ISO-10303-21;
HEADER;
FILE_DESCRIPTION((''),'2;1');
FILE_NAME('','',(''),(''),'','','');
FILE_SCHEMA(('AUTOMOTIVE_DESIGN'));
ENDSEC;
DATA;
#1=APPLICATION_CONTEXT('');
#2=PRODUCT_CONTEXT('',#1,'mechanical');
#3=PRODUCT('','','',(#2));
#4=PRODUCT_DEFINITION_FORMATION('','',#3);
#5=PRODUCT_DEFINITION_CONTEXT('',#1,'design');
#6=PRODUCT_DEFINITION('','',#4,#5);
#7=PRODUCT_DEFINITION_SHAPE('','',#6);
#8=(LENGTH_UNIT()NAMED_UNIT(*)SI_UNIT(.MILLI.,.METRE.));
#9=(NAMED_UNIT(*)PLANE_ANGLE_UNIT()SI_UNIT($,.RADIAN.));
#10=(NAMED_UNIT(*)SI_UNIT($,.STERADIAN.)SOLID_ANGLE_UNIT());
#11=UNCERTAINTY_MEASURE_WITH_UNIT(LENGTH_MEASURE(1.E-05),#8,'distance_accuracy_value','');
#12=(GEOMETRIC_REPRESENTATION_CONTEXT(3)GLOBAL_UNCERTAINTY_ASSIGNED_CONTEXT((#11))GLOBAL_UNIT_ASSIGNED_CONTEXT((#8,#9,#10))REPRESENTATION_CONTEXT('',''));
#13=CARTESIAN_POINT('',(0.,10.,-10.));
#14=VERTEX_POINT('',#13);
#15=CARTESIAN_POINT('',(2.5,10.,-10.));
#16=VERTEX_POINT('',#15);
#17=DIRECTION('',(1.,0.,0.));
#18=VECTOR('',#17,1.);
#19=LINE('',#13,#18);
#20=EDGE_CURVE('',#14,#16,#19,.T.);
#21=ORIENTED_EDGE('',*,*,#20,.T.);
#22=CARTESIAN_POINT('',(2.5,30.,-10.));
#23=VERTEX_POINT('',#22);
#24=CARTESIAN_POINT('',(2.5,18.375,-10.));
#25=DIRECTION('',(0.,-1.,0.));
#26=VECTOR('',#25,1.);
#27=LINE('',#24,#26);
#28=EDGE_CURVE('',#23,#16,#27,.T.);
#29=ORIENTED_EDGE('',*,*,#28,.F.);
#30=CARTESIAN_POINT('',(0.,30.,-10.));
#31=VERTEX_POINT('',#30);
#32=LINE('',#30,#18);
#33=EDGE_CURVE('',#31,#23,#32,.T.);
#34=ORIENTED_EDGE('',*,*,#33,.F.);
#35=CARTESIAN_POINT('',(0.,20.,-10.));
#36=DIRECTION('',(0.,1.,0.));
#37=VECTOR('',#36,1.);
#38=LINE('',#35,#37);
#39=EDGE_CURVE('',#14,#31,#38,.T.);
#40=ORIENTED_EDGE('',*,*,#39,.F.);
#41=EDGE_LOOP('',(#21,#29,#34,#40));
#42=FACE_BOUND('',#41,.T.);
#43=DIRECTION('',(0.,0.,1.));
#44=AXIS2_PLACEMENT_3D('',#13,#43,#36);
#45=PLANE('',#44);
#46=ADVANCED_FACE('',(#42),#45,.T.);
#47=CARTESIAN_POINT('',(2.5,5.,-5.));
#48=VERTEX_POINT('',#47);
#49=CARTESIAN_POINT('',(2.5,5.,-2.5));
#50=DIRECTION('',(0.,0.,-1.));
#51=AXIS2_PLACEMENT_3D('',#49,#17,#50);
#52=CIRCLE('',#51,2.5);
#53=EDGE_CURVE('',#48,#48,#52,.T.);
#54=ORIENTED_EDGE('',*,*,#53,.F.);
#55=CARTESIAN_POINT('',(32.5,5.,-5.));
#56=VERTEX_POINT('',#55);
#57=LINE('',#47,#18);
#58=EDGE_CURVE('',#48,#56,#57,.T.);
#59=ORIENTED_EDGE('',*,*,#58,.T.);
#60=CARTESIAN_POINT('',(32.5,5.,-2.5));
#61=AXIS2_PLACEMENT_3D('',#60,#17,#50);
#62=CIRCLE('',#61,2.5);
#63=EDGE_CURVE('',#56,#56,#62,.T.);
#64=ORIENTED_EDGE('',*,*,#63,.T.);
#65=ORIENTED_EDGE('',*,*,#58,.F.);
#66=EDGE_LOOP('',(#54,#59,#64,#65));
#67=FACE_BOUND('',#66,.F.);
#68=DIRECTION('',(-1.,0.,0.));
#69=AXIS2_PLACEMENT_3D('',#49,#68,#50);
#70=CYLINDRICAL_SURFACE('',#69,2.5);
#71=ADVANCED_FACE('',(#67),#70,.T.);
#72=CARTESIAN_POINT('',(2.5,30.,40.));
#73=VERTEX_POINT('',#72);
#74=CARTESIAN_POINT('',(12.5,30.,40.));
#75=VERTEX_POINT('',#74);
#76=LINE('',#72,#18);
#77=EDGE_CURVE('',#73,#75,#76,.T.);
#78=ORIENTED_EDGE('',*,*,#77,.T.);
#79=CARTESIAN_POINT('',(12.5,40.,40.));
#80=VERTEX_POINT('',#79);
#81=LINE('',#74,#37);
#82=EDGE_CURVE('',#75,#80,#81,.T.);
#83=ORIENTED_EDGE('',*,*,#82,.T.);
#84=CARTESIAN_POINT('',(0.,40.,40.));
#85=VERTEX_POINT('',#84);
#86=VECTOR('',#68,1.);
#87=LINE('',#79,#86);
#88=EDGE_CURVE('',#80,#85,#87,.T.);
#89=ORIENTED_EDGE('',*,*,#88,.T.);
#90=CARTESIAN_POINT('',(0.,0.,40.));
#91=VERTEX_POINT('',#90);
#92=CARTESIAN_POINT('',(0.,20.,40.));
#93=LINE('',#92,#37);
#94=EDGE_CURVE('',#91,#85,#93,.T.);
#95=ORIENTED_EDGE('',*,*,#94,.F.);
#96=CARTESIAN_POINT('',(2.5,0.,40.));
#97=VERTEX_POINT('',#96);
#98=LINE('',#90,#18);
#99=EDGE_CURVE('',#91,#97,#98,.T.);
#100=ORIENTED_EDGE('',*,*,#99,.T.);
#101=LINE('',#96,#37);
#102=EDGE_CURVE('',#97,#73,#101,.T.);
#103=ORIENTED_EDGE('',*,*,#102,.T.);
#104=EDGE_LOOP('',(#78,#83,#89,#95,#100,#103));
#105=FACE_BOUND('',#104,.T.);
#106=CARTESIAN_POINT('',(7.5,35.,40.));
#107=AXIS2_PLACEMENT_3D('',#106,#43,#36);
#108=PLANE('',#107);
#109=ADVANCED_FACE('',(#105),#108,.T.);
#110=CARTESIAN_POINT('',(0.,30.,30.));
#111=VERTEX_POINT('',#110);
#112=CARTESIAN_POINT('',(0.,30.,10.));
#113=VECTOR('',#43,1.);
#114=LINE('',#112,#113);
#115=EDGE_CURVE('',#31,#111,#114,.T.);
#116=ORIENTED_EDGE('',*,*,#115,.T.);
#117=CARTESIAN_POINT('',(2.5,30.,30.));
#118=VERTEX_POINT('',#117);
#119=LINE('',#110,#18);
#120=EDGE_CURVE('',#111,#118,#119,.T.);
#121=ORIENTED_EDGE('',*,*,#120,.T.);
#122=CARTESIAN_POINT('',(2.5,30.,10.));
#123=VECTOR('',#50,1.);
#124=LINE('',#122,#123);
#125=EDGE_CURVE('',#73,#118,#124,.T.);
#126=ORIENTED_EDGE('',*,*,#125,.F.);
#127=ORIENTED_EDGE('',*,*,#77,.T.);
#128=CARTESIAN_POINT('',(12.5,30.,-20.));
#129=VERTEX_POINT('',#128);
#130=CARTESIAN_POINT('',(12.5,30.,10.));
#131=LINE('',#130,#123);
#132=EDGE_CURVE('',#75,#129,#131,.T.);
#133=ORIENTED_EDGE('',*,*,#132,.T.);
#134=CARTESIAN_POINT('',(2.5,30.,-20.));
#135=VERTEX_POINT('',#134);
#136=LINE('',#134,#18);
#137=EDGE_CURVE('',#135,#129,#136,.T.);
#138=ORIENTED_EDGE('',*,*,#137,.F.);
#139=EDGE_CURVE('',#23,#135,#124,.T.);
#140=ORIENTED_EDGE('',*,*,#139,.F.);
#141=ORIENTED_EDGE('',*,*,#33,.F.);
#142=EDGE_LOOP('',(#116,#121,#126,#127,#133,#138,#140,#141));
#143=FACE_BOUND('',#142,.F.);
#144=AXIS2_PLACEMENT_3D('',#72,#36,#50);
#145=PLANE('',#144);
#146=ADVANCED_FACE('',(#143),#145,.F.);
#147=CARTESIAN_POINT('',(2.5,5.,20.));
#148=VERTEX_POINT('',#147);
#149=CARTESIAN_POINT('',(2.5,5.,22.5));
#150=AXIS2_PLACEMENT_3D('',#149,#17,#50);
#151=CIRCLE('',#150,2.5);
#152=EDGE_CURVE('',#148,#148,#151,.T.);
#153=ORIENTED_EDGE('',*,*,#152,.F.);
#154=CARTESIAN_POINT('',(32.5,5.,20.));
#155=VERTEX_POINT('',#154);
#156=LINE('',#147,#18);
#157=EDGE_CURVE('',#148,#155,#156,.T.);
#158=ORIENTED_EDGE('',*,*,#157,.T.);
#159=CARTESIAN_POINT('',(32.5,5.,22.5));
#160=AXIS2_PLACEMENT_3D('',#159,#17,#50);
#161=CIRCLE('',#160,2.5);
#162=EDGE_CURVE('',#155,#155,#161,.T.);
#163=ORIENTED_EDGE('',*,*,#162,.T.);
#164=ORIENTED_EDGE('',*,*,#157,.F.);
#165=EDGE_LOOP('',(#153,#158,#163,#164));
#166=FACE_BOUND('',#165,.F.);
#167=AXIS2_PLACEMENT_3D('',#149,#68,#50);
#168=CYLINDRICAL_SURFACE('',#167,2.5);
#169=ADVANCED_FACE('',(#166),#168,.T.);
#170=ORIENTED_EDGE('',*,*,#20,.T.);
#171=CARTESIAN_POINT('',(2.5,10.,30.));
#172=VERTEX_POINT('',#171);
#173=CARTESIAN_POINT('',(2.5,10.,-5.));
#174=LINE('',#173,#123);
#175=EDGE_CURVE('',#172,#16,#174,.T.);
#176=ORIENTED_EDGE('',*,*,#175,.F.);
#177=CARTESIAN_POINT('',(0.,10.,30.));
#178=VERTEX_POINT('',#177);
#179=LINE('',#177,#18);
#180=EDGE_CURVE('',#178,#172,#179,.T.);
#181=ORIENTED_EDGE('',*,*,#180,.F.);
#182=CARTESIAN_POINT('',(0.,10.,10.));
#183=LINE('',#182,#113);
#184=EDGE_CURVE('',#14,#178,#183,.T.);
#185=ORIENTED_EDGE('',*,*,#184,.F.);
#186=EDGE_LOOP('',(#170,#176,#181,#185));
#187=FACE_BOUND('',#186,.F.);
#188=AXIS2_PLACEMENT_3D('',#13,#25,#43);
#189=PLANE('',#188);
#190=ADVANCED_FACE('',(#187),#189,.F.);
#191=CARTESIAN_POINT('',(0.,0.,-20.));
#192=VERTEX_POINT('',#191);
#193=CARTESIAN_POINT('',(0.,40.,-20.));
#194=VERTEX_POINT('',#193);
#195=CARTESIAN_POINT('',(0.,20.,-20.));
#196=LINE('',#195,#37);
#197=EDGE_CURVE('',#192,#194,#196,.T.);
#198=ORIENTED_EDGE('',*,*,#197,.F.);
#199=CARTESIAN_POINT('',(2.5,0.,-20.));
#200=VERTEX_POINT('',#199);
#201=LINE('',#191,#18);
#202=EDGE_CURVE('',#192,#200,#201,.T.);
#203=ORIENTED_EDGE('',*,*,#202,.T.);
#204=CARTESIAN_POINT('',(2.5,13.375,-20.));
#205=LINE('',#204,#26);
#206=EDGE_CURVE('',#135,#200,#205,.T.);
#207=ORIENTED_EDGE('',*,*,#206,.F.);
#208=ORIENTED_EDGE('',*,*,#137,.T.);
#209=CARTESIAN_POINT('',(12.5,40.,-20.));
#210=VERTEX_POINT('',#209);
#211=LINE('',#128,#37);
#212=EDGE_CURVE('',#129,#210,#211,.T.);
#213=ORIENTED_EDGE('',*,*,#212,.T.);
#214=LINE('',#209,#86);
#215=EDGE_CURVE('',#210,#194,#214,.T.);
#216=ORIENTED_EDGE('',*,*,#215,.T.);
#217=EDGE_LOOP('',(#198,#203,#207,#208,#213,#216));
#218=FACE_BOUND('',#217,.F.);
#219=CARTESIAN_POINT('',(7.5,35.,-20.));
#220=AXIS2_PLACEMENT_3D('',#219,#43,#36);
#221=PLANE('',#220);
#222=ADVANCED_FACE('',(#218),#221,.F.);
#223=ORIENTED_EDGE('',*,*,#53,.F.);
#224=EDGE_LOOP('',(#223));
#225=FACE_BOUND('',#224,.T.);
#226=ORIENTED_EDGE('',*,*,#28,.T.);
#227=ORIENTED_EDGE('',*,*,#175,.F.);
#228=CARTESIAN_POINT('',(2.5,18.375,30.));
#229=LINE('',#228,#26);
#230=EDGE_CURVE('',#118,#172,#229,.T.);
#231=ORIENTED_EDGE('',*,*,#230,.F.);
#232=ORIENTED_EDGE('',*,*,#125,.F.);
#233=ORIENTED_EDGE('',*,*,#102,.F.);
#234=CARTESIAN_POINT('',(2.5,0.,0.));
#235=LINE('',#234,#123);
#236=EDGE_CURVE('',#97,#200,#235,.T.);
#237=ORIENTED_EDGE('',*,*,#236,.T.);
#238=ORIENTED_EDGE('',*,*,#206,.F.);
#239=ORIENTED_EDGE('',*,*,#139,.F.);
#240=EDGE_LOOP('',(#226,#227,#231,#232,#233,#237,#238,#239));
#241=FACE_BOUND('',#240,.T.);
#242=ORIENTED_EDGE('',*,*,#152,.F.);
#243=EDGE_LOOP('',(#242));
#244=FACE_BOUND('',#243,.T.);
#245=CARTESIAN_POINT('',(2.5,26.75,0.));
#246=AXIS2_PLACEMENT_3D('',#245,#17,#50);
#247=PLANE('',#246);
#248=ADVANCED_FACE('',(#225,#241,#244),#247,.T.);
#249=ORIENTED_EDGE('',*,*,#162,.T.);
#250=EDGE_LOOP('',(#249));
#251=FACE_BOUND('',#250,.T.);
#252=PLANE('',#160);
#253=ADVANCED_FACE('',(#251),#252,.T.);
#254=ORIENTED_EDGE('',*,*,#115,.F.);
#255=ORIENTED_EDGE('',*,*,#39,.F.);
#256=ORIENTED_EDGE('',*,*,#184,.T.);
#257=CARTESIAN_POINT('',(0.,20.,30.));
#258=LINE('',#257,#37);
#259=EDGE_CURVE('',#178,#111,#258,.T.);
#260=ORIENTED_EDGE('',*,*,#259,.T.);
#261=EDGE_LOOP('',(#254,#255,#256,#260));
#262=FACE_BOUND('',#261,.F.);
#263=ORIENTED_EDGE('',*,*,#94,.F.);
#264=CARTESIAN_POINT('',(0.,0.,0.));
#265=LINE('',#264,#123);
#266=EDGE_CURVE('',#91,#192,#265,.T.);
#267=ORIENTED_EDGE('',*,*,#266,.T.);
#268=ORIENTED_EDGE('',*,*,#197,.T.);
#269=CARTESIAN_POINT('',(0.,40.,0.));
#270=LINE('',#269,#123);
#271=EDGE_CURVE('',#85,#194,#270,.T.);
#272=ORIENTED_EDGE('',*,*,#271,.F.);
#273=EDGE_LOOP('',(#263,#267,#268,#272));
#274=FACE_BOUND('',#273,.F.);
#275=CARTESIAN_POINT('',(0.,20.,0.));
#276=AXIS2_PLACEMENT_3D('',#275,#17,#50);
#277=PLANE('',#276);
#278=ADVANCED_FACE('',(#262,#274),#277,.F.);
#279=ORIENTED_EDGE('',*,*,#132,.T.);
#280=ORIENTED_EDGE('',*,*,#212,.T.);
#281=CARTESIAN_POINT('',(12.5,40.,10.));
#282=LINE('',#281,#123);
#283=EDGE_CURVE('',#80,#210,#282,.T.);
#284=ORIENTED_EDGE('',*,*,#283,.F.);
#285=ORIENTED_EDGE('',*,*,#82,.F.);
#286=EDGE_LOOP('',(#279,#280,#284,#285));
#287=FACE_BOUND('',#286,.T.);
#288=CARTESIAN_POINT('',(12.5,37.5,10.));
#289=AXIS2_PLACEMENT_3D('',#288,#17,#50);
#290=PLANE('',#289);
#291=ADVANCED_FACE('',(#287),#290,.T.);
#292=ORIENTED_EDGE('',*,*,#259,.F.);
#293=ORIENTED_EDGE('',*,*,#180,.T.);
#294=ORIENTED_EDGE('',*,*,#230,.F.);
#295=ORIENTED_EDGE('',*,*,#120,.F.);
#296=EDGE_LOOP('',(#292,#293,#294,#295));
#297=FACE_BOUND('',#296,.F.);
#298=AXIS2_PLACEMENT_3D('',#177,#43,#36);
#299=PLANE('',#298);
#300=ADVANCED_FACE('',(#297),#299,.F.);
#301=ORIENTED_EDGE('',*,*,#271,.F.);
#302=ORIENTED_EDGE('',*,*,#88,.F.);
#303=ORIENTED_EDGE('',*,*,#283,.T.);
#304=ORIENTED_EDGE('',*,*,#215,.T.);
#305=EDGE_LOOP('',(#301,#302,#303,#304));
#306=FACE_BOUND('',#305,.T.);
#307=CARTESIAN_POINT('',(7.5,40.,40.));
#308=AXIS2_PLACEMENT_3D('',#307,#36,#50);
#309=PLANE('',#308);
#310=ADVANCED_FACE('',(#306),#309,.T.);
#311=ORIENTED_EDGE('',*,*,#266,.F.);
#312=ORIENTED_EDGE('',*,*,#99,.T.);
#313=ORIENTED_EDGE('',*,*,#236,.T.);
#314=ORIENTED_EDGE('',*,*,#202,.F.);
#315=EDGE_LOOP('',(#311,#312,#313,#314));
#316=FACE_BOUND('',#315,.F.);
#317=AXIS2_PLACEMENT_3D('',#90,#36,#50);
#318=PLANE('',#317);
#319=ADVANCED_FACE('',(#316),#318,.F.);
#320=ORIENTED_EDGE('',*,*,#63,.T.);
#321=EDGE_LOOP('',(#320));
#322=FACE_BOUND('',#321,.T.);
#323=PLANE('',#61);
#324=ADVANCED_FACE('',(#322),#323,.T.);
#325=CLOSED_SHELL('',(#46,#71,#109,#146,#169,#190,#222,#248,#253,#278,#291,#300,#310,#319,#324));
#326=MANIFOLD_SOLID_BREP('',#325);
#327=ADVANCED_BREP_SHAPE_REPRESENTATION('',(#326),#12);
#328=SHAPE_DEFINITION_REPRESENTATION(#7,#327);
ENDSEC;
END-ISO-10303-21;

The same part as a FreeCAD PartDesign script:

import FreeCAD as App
import Part
import Sketcher

V = App.Vector
Q = App.Units.Quantity

doc = App.newDocument("Part")
body = doc.addObject("PartDesign::Body", "Body")

sketch1 = doc.addObject("Sketcher::SketchObject", "Sketch")
body.addObject(sketch1)
sketch1.AttachmentSupport = (doc.YZ_Plane, [""])
sketch1.MapMode = "FlatFace"
sketch1.addGeometry(Part.LineSegment(V(40, 40, 0), V(0, 40, 0)), False)
sketch1.addGeometry(Part.LineSegment(V(0, 40, 0), V(0, -40, 0)), False)
sketch1.addGeometry(Part.LineSegment(V(0, -40, 0), V(40, -40, 0)), False)
sketch1.addGeometry(Part.LineSegment(V(40, -40, 0), V(40, 40, 0)), False)
sketch1.addConstraint(Sketcher.Constraint("Coincident", 0, 2, 1, 1))
sketch1.addConstraint(Sketcher.Constraint("Coincident", 1, 2, 2, 1))
sketch1.addConstraint(Sketcher.Constraint("Coincident", 2, 2, 3, 1))
sketch1.addConstraint(Sketcher.Constraint("Coincident", 3, 2, 0, 1))
sketch1.addConstraint(Sketcher.Constraint("Horizontal", 0))
sketch1.addConstraint(Sketcher.Constraint("Vertical", 1))
sketch1.addConstraint(Sketcher.Constraint("Horizontal", 2))
sketch1.addConstraint(Sketcher.Constraint("Vertical", 3))
sketch1.addConstraint(Sketcher.Constraint("Symmetric", 0, 2, 1, 2, -1, 1))
sketch1.addConstraint(Sketcher.Constraint("DistanceX", 0, 2, 0, 1, Q("40 mm")))
sketch1.addConstraint(Sketcher.Constraint("DistanceY", 1, 2, 1, 1, Q("80 mm")))
pad1 = doc.addObject("PartDesign::Pad", "Pad")
body.addObject(pad1)
pad1.Profile = sketch1
pad1.Length = 7.5

sketch2 = doc.addObject("Sketcher::SketchObject", "Sketch001")
body.addObject(sketch2)
sketch2.AttachmentSupport = (doc.YZ_Plane, [""])
sketch2.MapMode = "FlatFace"
sketch2.AttachmentOffset = App.Placement(V(0, 0, 7.5), App.Rotation())
sketch2.addGeometry(Part.LineSegment(V(18.5, 40, 0), V(0, 40, 0)), False)
sketch2.addGeometry(Part.LineSegment(V(0, 40, 0), V(0, -40, 0)), False)
sketch2.addGeometry(Part.LineSegment(V(0, -40, 0), V(18.5, -40, 0)), False)
sketch2.addGeometry(Part.LineSegment(V(18.5, -40, 0), V(18.5, 40, 0)), False)
sketch2.addConstraint(Sketcher.Constraint("Coincident", 0, 2, 1, 1))
sketch2.addConstraint(Sketcher.Constraint("Coincident", 1, 2, 2, 1))
sketch2.addConstraint(Sketcher.Constraint("Coincident", 2, 2, 3, 1))
sketch2.addConstraint(Sketcher.Constraint("Coincident", 3, 2, 0, 1))
sketch2.addConstraint(Sketcher.Constraint("Horizontal", 0))
sketch2.addConstraint(Sketcher.Constraint("Vertical", 1))
sketch2.addConstraint(Sketcher.Constraint("Horizontal", 2))
sketch2.addConstraint(Sketcher.Constraint("Vertical", 3))
sketch2.addConstraint(Sketcher.Constraint("Symmetric", 0, 2, 1, 2, -1, 1))
sketch2.addConstraint(Sketcher.Constraint("DistanceY", 1, 2, 1, 1, Q("80 mm")))
sketch2.addConstraint(Sketcher.Constraint("DistanceX", 0, 2, 0, 1, Q("18.5 mm")))
pocket1 = doc.addObject("PartDesign::Pocket", "Pocket")
body.addObject(pocket1)
pocket1.Profile = sketch2
pocket1.Length = 5

sketch3 = doc.addObject("Sketcher::SketchObject", "Sketch002")
body.addObject(sketch3)
sketch3.AttachmentSupport = (doc.YZ_Plane, [""])
sketch3.MapMode = "FlatFace"
sketch3.AttachmentOffset = App.Placement(V(0, 0, 7.5), App.Rotation())
sketch3.addGeometry(Part.LineSegment(V(35, 40, 0), V(18.5, 40, 0)), False)
sketch3.addGeometry(Part.LineSegment(V(18.5, 40, 0), V(18.5, -40, 0)), False)
sketch3.addGeometry(Part.LineSegment(V(18.5, -40, 0), V(35, -40, 0)), False)
sketch3.addGeometry(Part.LineSegment(V(35, -40, 0), V(35, 40, 0)), False)
sketch3.addConstraint(Sketcher.Constraint("Coincident", 0, 2, 1, 1))
sketch3.addConstraint(Sketcher.Constraint("Coincident", 1, 2, 2, 1))
sketch3.addConstraint(Sketcher.Constraint("Coincident", 2, 2, 3, 1))
sketch3.addConstraint(Sketcher.Constraint("Coincident", 3, 2, 0, 1))
sketch3.addConstraint(Sketcher.Constraint("Horizontal", 0))
sketch3.addConstraint(Sketcher.Constraint("Vertical", 1))
sketch3.addConstraint(Sketcher.Constraint("Horizontal", 2))
sketch3.addConstraint(Sketcher.Constraint("Vertical", 3))
sketch3.addConstraint(Sketcher.Constraint("DistanceY", 1, 2, 1, 1, Q("80 mm")))
sketch3.addConstraint(Sketcher.Constraint("DistanceX", 0, 2, 0, 1, Q("16.5 mm")))
sketch3.addConstraint(Sketcher.Constraint("DistanceY", -1, 1, 0, 2, Q("40 mm")))
sketch3.addConstraint(Sketcher.Constraint("DistanceX", -1, 1, 2, 2, Q("35 mm")))
pocket2 = doc.addObject("PartDesign::Pocket", "Pocket001")
body.addObject(pocket2)
pocket2.Profile = sketch3
pocket2.Length = 5

sketch4 = doc.addObject("Sketcher::SketchObject", "Sketch003")
body.addObject(sketch4)
sketch4.AttachmentSupport = (doc.YZ_Plane, [""])
sketch4.MapMode = "FlatFace"
sketch4.addGeometry(Part.LineSegment(V(40, -40, 0), V(0, -40, 0)), False)
sketch4.addGeometry(Part.LineSegment(V(0, -40, 0), V(0, -20, 0)), False)
sketch4.addGeometry(Part.LineSegment(V(0, -20, 0), V(40, -20, 0)), False)
sketch4.addGeometry(Part.LineSegment(V(40, -20, 0), V(40, -40, 0)), False)
sketch4.addConstraint(Sketcher.Constraint("Coincident", 0, 2, 1, 1))
sketch4.addConstraint(Sketcher.Constraint("Coincident", 1, 2, 2, 1))
sketch4.addConstraint(Sketcher.Constraint("Coincident", 2, 2, 3, 1))
sketch4.addConstraint(Sketcher.Constraint("Coincident", 3, 2, 0, 1))
sketch4.addConstraint(Sketcher.Constraint("Horizontal", 0))
sketch4.addConstraint(Sketcher.Constraint("Vertical", 1))
sketch4.addConstraint(Sketcher.Constraint("Horizontal", 2))
sketch4.addConstraint(Sketcher.Constraint("Vertical", 3))
sketch4.addConstraint(Sketcher.Constraint("PointOnObject", 0, 2, -2))
sketch4.addConstraint(Sketcher.Constraint("DistanceX", 0, 2, 0, 1, Q("40 mm")))
sketch4.addConstraint(Sketcher.Constraint("DistanceY", 1, 1, 1, 2, Q("20 mm")))
sketch4.addConstraint(Sketcher.Constraint("DistanceY", 0, 2, -1, 1, Q("40 mm")))
pocket3 = doc.addObject("PartDesign::Pocket", "Pocket002")
body.addObject(pocket3)
pocket3.Profile = sketch4
pocket3.Length = 10
pocket3.Reversed = True

sketch5 = doc.addObject("Sketcher::SketchObject", "Sketch004")
body.addObject(sketch5)
sketch5.AttachmentSupport = (doc.YZ_Plane, [""])
sketch5.MapMode = "FlatFace"
sketch5.addGeometry(Part.LineSegment(V(30, -10, 0), V(10, -10, 0)), False)
sketch5.addGeometry(Part.LineSegment(V(10, -10, 0), V(10, 30, 0)), False)
sketch5.addGeometry(Part.LineSegment(V(10, 30, 0), V(30, 30, 0)), False)
sketch5.addGeometry(Part.LineSegment(V(30, 30, 0), V(30, -10, 0)), False)
sketch5.addConstraint(Sketcher.Constraint("Coincident", 0, 2, 1, 1))
sketch5.addConstraint(Sketcher.Constraint("Coincident", 1, 2, 2, 1))
sketch5.addConstraint(Sketcher.Constraint("Coincident", 2, 2, 3, 1))
sketch5.addConstraint(Sketcher.Constraint("Coincident", 3, 2, 0, 1))
sketch5.addConstraint(Sketcher.Constraint("Horizontal", 0))
sketch5.addConstraint(Sketcher.Constraint("Vertical", 1))
sketch5.addConstraint(Sketcher.Constraint("Horizontal", 2))
sketch5.addConstraint(Sketcher.Constraint("Vertical", 3))
sketch5.addConstraint(Sketcher.Constraint("DistanceX", 0, 2, 0, 1, Q("20 mm")))
sketch5.addConstraint(Sketcher.Constraint("DistanceY", 1, 1, 1, 2, Q("40 mm")))
sketch5.addConstraint(Sketcher.Constraint("DistanceX", -1, 1, 0, 2, Q("10 mm")))
sketch5.addConstraint(Sketcher.Constraint("DistanceY", 0, 2, -1, 1, Q("10 mm")))
pocket4 = doc.addObject("PartDesign::Pocket", "Pocket003")
body.addObject(pocket4)
pocket4.Profile = sketch5
pocket4.Length = 10
pocket4.Reversed = True

sketch6 = doc.addObject("Sketcher::SketchObject", "Sketch005")
body.addObject(sketch6)
sketch6.AttachmentSupport = (doc.YZ_Plane, [""])
sketch6.MapMode = "FlatFace"
sketch6.AttachmentOffset = App.Placement(V(0, 0, 2.5), App.Rotation())
sketch6.addGeometry(Part.LineSegment(V(35, 40, 0), V(30, 40, 0)), False)
sketch6.addGeometry(Part.LineSegment(V(30, 40, 0), V(30, -20, 0)), False)
sketch6.addGeometry(Part.LineSegment(V(30, -20, 0), V(35, -20, 0)), False)
sketch6.addGeometry(Part.LineSegment(V(35, -20, 0), V(35, 40, 0)), False)
sketch6.addConstraint(Sketcher.Constraint("Coincident", 0, 2, 1, 1))
sketch6.addConstraint(Sketcher.Constraint("Coincident", 1, 2, 2, 1))
sketch6.addConstraint(Sketcher.Constraint("Coincident", 2, 2, 3, 1))
sketch6.addConstraint(Sketcher.Constraint("Coincident", 3, 2, 0, 1))
sketch6.addConstraint(Sketcher.Constraint("Horizontal", 0))
sketch6.addConstraint(Sketcher.Constraint("Vertical", 1))
sketch6.addConstraint(Sketcher.Constraint("Horizontal", 2))
sketch6.addConstraint(Sketcher.Constraint("Vertical", 3))
sketch6.addConstraint(Sketcher.Constraint("DistanceX", 0, 2, 0, 1, Q("5 mm")))
sketch6.addConstraint(Sketcher.Constraint("DistanceY", 1, 2, 1, 1, Q("60 mm")))
sketch6.addConstraint(Sketcher.Constraint("DistanceX", -1, 1, 0, 2, Q("30 mm")))
sketch6.addConstraint(Sketcher.Constraint("DistanceY", -1, 1, 0, 2, Q("40 mm")))
pad2 = doc.addObject("PartDesign::Pad", "Pad001")
body.addObject(pad2)
pad2.Profile = sketch6
pad2.Length = 10

sketch7 = doc.addObject("Sketcher::SketchObject", "Sketch006")
body.addObject(sketch7)
sketch7.AttachmentSupport = (doc.YZ_Plane, [""])
sketch7.MapMode = "FlatFace"
sketch7.AttachmentOffset = App.Placement(V(0, 0, 7.5), App.Rotation())
sketch7.addGeometry(Part.LineSegment(V(40, 40, 0), V(35, 40, 0)), False)
sketch7.addGeometry(Part.LineSegment(V(35, 40, 0), V(35, -20, 0)), False)
sketch7.addGeometry(Part.LineSegment(V(35, -20, 0), V(40, -20, 0)), False)
sketch7.addGeometry(Part.LineSegment(V(40, -20, 0), V(40, 40, 0)), False)
sketch7.addConstraint(Sketcher.Constraint("Coincident", 0, 2, 1, 1))
sketch7.addConstraint(Sketcher.Constraint("Coincident", 1, 2, 2, 1))
sketch7.addConstraint(Sketcher.Constraint("Coincident", 2, 2, 3, 1))
sketch7.addConstraint(Sketcher.Constraint("Coincident", 3, 2, 0, 1))
sketch7.addConstraint(Sketcher.Constraint("Horizontal", 0))
sketch7.addConstraint(Sketcher.Constraint("Vertical", 1))
sketch7.addConstraint(Sketcher.Constraint("Horizontal", 2))
sketch7.addConstraint(Sketcher.Constraint("Vertical", 3))
sketch7.addConstraint(Sketcher.Constraint("DistanceX", 0, 2, 0, 1, Q("5 mm")))
sketch7.addConstraint(Sketcher.Constraint("DistanceY", 1, 2, 1, 1, Q("60 mm")))
sketch7.addConstraint(Sketcher.Constraint("DistanceX", -1, 1, 0, 2, Q("35 mm")))
sketch7.addConstraint(Sketcher.Constraint("DistanceY", -1, 1, 0, 2, Q("40 mm")))
pad3 = doc.addObject("PartDesign::Pad", "Pad002")
body.addObject(pad3)
pad3.Profile = sketch7
pad3.Length = 5

sketch8 = doc.addObject("Sketcher::SketchObject", "Sketch007")
body.addObject(sketch8)
sketch8.AttachmentSupport = (doc.YZ_Plane, [""])
sketch8.MapMode = "FlatFace"
sketch8.AttachmentOffset = App.Placement(V(0, 0, 2.5), App.Rotation())
sketch8.addGeometry(Part.Circle(V(5, 22.5, 0), V(0, 0, 1), 2.5), False)
sketch8.addGeometry(Part.Circle(V(5, -2.5, 0), V(0, 0, 1), 2.5), False)
sketch8.addConstraint(Sketcher.Constraint("Equal", 0, 1))
sketch8.addConstraint(Sketcher.Constraint("Vertical", 0, 3, 1, 3))
sketch8.addConstraint(Sketcher.Constraint("Diameter", 0, Q("5 mm")))
sketch8.addConstraint(Sketcher.Constraint("DistanceX", -1, 1, 0, 3, Q("5 mm")))
sketch8.addConstraint(Sketcher.Constraint("DistanceY", 1, 3, 0, 3, Q("25 mm")))
sketch8.addConstraint(Sketcher.Constraint("DistanceY", -1, 1, 0, 3, Q("22.5 mm")))
pad4 = doc.addObject("PartDesign::Pad", "Pad003")
body.addObject(pad4)
pad4.Profile = sketch8
pad4.Length = 30

doc.recompute()
